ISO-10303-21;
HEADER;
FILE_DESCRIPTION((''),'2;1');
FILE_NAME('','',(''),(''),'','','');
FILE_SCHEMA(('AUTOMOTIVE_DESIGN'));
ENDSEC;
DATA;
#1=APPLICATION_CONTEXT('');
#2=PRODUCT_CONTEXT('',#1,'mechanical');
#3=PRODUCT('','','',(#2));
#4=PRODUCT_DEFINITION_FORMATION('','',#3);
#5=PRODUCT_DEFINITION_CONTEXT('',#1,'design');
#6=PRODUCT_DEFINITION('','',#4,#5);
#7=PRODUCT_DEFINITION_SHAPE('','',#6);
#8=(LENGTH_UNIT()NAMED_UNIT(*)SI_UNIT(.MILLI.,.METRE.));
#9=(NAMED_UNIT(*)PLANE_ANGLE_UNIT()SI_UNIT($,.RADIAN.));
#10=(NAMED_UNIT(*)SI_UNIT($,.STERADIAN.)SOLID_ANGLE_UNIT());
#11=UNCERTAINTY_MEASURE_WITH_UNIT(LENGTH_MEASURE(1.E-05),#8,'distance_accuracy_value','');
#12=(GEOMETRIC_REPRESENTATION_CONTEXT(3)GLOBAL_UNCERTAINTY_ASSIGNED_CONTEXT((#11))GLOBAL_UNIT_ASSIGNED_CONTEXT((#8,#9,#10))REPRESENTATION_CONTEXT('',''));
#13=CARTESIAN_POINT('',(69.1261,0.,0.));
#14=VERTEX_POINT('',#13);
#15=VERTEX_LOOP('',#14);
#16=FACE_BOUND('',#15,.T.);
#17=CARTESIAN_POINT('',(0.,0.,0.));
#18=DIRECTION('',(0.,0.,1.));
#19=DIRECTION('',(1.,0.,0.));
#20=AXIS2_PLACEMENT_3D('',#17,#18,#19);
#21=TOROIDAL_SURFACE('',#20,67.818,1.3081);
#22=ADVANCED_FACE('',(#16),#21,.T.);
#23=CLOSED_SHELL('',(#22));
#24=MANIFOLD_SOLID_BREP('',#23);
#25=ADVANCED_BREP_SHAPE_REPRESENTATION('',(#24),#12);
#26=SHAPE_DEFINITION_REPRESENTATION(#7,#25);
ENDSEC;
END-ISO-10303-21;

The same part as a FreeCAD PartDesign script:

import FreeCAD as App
import Part
import Sketcher
Q = App.Units.Quantity

doc = App.newDocument("Part")
body = doc.addObject("PartDesign::Body", "Body")

sketch1 = body.newObject("Sketcher::SketchObject", "Sketch")
sketch1.AttachmentSupport = (doc.getObject("YZ_Plane"), [""])
sketch1.MapMode = "FlatFace"
sketch1.addGeometry(Part.Circle(App.Vector(-67.8, 0, 0), App.Vector(0, 0, 1), 1.3), False)
sketch1.addConstraint([
    Sketcher.Constraint("PointOnObject", 0, 3, -1),
    Sketcher.Constraint("Diameter", 0, Q("0.103 in")),
    Sketcher.Constraint("DistanceX", 0, 3, -1, 1, Q("2.67 in")),
])
revolution = body.newObject("PartDesign::Revolution", "Revolution")
revolution.Profile = sketch1
revolution.ReferenceAxis = (sketch1, ["V_Axis"])
revolution.Angle = 360

doc.recompute()
